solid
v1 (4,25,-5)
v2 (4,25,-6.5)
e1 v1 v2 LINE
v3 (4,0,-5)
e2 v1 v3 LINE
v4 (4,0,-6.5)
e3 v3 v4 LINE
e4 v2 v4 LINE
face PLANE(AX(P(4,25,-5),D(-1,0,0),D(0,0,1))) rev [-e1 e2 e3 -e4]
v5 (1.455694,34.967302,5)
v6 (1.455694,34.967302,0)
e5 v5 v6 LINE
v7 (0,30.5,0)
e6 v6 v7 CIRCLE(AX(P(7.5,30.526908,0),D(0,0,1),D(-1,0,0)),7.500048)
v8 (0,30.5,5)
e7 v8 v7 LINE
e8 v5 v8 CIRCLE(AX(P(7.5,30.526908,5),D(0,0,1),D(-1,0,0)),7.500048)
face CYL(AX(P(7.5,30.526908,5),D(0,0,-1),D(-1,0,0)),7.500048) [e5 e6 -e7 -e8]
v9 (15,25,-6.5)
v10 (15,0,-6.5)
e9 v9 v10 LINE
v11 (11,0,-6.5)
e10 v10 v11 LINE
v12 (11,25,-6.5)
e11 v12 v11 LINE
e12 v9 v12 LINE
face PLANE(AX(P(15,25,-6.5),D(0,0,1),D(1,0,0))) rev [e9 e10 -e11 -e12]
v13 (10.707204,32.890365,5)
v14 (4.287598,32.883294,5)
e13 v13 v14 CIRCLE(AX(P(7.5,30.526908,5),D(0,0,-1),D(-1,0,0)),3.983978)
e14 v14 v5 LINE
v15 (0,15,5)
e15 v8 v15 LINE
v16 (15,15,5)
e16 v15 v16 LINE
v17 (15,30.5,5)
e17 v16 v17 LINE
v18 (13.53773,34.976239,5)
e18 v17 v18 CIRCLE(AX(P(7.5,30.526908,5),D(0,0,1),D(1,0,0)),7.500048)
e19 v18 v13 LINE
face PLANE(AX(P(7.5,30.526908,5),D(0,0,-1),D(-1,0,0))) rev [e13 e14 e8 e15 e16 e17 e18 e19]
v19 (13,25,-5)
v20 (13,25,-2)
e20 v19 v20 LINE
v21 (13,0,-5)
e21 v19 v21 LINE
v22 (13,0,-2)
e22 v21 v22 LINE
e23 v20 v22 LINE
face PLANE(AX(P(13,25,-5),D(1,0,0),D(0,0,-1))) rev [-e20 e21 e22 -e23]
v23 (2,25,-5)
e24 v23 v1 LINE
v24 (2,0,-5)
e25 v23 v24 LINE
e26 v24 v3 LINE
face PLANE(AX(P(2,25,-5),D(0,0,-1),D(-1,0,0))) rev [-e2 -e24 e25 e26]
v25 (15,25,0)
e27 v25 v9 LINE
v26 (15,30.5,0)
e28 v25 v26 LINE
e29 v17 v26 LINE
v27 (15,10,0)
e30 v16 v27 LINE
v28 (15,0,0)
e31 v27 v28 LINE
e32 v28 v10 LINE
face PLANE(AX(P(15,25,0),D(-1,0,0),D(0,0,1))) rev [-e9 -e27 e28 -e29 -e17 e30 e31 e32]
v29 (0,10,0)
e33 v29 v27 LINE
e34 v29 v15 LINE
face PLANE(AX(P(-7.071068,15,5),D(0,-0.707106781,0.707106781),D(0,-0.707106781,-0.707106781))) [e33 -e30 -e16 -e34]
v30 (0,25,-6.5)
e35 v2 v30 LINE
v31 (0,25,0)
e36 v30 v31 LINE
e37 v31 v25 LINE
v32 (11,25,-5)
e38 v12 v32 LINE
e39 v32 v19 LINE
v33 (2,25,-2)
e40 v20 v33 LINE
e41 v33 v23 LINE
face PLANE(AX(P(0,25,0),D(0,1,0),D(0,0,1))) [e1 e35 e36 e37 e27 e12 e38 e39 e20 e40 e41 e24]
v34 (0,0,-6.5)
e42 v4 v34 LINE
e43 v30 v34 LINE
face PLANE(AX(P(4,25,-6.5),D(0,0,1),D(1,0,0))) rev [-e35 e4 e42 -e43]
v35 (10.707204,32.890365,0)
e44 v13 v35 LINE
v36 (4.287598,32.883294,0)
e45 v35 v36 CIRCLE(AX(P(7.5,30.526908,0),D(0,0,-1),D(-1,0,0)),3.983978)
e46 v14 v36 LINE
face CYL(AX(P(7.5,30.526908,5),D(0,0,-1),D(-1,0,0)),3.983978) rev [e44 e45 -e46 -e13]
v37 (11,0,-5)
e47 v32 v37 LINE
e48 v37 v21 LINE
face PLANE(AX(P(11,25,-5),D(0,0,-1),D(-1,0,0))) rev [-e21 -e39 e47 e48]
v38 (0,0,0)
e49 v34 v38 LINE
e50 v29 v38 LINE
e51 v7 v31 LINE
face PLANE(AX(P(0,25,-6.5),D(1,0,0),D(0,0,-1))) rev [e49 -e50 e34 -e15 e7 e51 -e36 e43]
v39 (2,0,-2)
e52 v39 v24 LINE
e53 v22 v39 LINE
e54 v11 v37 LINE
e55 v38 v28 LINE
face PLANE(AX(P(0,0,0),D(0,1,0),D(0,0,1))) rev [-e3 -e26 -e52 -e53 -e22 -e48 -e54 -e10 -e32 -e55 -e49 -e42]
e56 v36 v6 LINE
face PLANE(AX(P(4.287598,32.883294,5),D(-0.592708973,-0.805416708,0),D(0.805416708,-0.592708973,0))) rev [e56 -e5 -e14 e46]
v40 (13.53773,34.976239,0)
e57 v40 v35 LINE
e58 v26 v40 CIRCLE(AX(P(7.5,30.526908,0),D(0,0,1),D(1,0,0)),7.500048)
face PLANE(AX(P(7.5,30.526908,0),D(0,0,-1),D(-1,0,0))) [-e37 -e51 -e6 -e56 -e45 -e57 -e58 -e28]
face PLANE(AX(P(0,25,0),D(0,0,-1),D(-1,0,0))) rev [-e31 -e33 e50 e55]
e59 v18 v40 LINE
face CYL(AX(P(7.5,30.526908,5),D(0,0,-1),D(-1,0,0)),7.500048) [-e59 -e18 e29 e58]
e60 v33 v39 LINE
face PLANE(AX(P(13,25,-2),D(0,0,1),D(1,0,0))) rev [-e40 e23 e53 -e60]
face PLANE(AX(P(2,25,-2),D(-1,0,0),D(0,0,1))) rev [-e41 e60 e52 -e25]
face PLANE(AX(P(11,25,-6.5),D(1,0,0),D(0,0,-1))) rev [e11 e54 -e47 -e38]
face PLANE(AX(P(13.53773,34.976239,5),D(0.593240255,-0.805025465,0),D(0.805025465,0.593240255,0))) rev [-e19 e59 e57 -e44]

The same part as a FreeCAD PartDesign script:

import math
import FreeCAD as App
import Part
import Sketcher
Q = App.Units.Quantity

doc = App.newDocument("Part")
body = doc.addObject("PartDesign::Body", "Body")

# Sketch on XZ plane
sketch1 = body.newObject("Sketcher::SketchObject", "Sketch")
sketch1.AttachmentSupport = (doc.getObject("XZ_Plane"), [""])
sketch1.MapMode = "FlatFace"
sketch1.addGeometry(Part.LineSegment(App.Vector(0, 0, 0), App.Vector(15, 0, 0)), False)
sketch1.addGeometry(Part.LineSegment(App.Vector(15, 0, 0), App.Vector(15, -6.5, 0)), False)
sketch1.addGeometry(Part.LineSegment(App.Vector(15, -6.5, 0), App.Vector(11, -6.5, 0)), False)
sketch1.addGeometry(Part.LineSegment(App.Vector(11, -6.5, 0), App.Vector(11, -5, 0)), False)
sketch1.addGeometry(Part.LineSegment(App.Vector(11, -5, 0), App.Vector(13, -5, 0)), False)
sketch1.addGeometry(Part.LineSegment(App.Vector(13, -5, 0), App.Vector(13, -2, 0)), False)
sketch1.addGeometry(Part.LineSegment(App.Vector(13, -2, 0), App.Vector(2, -2, 0)), False)
sketch1.addGeometry(Part.LineSegment(App.Vector(2, -2, 0), App.Vector(2, -5, 0)), False)
sketch1.addGeometry(Part.LineSegment(App.Vector(2, -5, 0), App.Vector(4, -5, 0)), False)
sketch1.addGeometry(Part.LineSegment(App.Vector(4, -5, 0), App.Vector(4, -6.5, 0)), False)
sketch1.addGeometry(Part.LineSegment(App.Vector(4, -6.5, 0), App.Vector(0, -6.5, 0)), False)
sketch1.addGeometry(Part.LineSegment(App.Vector(0, -6.5, 0), App.Vector(0, 0, 0)), False)
sketch1.addConstraint(Sketcher.Constraint("Coincident", 0, 2, 1, 1))
sketch1.addConstraint(Sketcher.Constraint("Coincident", 1, 2, 2, 1))
sketch1.addConstraint(Sketcher.Constraint("Coincident", 2, 2, 3, 1))
sketch1.addConstraint(Sketcher.Constraint("Coincident", 3, 2, 4, 1))
sketch1.addConstraint(Sketcher.Constraint("Coincident", 4, 2, 5, 1))
sketch1.addConstraint(Sketcher.Constraint("Coincident", 5, 2, 6, 1))
sketch1.addConstraint(Sketcher.Constraint("Coincident", 6, 2, 7, 1))
sketch1.addConstraint(Sketcher.Constraint("Coincident", 7, 2, 8, 1))
sketch1.addConstraint(Sketcher.Constraint("Coincident", 8, 2, 9, 1))
sketch1.addConstraint(Sketcher.Constraint("Coincident", 9, 2, 10, 1))
sketch1.addConstraint(Sketcher.Constraint("Coincident", 10, 2, 11, 1))
sketch1.addConstraint(Sketcher.Constraint("Coincident", 11, 2, 0, 1))
sketch1.addConstraint(Sketcher.Constraint("Horizontal", 0))
sketch1.addConstraint(Sketcher.Constraint("Vertical", 1))
sketch1.addConstraint(Sketcher.Constraint("Horizontal", 2))
sketch1.addConstraint(Sketcher.Constraint("Vertical", 3))
sketch1.addConstraint(Sketcher.Constraint("Horizontal", 4))
sketch1.addConstraint(Sketcher.Constraint("Vertical", 5))
sketch1.addConstraint(Sketcher.Constraint("Horizontal", 6))
sketch1.addConstraint(Sketcher.Constraint("Vertical", 7))
sketch1.addConstraint(Sketcher.Constraint("Horizontal", 8))
sketch1.addConstraint(Sketcher.Constraint("Vertical", 9))
sketch1.addConstraint(Sketcher.Constraint("Horizontal", 10))
sketch1.addConstraint(Sketcher.Constraint("Vertical", 11))
sketch1.addConstraint(Sketcher.Constraint("Coincident", 11, 2, -1, 1))
sketch1.addConstraint(Sketcher.Constraint("Horizontal", 4, 2, 7, 2))
sketch1.addConstraint(Sketcher.Constraint("Horizontal", 2, 2, 9, 2))
sketch1.addConstraint(Sketcher.Constraint("Equal", 4, 8))
sketch1.addConstraint(Sketcher.Constraint("Equal", 2, 10))
sketch1.addConstraint(Sketcher.Constraint("DistanceX", 0, 1, 0, 2, Q("15 mm")))
sketch1.addConstraint(Sketcher.Constraint("DistanceX", 2, 2, 2, 1, Q("4 mm")))
sketch1.addConstraint(Sketcher.Constraint("DistanceX", 4, 1, 4, 2, Q("2 mm")))
sketch1.addConstraint(Sketcher.Constraint("DistanceY", 5, 1, 5, 2, Q("3 mm")))
sketch1.addConstraint(Sketcher.Constraint("DistanceY", 1, 2, 1, 1, Q("6.5 mm")))
sketch1.addConstraint(Sketcher.Constraint("DistanceY", 3, 1, 3, 2, Q("1.5 mm")))
pad1 = body.newObject("PartDesign::Pad", "Pad")
pad1.Profile = sketch1
pad1.Length = 25
pad1.Reversed = True

# Sketch on XY plane
sketch2 = body.newObject("Sketcher::SketchObject", "Sketch001")
sketch2.AttachmentSupport = (doc.getObject("XY_Plane"), [""])
sketch2.MapMode = "FlatFace"
sketch2.addGeometry(Part.ArcOfCircle(Part.Circle(App.Vector(7.5, 30.526908, 0), App.Vector(0, 0, 1), 7.500048), math.radians(-0.205563), math.radians(36.387285)), False)
sketch2.addGeometry(Part.LineSegment(App.Vector(13.53773, 34.976239, 0), App.Vector(10.707204, 32.890365, 0)), False)
sketch2.addGeometry(Part.ArcOfCircle(Part.Circle(App.Vector(7.5, 30.526908, 0), App.Vector(0, 0, 1), 3.983978), math.radians(143.738921), math.radians(396.387285)), False)
sketch2.addGeometry(Part.LineSegment(App.Vector(4.287598, 32.883294, 0), App.Vector(1.455694, 34.967302, 0)), False)
sketch2.addGeometry(Part.ArcOfCircle(Part.Circle(App.Vector(7.5, 30.526908, 0), App.Vector(0, 0, 1), 7.500048), math.radians(143.697477), math.radians(180.205563)), False)
sketch2.addGeometry(Part.LineSegment(App.Vector(0, 30.5, 0), App.Vector(0, 15, 0)), False)
sketch2.addGeometry(Part.LineSegment(App.Vector(0, 15, 0), App.Vector(15, 15, 0)), False)
sketch2.addGeometry(Part.LineSegment(App.Vector(15, 15, 0), App.Vector(15, 30.5, 0)), False)
sketch2.addConstraint(Sketcher.Constraint("Coincident", 0, 2, 1, 1))
sketch2.addConstraint(Sketcher.Constraint("Coincident", 1, 2, 2, 2))
sketch2.addConstraint(Sketcher.Constraint("Coincident", 2, 1, 3, 1))
sketch2.addConstraint(Sketcher.Constraint("Coincident", 3, 2, 4, 1))
sketch2.addConstraint(Sketcher.Constraint("Coincident", 4, 2, 5, 1))
sketch2.addConstraint(Sketcher.Constraint("Coincident", 5, 2, 6, 1))
sketch2.addConstraint(Sketcher.Constraint("Coincident", 6, 2, 7, 1))
sketch2.addConstraint(Sketcher.Constraint("Coincident", 7, 2, 0, 1))
sketch2.addConstraint(Sketcher.Constraint("Vertical", 5))
sketch2.addConstraint(Sketcher.Constraint("Horizontal", 6))
sketch2.addConstraint(Sketcher.Constraint("Vertical", 7))
sketch2.addConstraint(Sketcher.Constraint("Coincident", 2, 3, 0, 3))
sketch2.addConstraint(Sketcher.Constraint("Coincident", 4, 3, 0, 3))
sketch2.addConstraint(Sketcher.Constraint("Equal", 0, 4))
sketch2.addConstraint(Sketcher.Constraint("PointOnObject", 4, 2, -2))
sketch2.addConstraint(Sketcher.Constraint("Horizontal", 4, 2, 7, 2))
sketch2.addConstraint(Sketcher.Constraint("DistanceX", 6, 1, 6, 2, Q("15 mm")))
sketch2.addConstraint(Sketcher.Constraint("DistanceY", 5, 2, 5, 1, Q("15.5 mm")))
sketch2.addConstraint(Sketcher.Constraint("DistanceY", -1, 1, 5, 2, Q("15 mm")))
sketch2.addConstraint(Sketcher.Constraint("Radius", 2, Q("3.983978 mm")))
sketch2.addConstraint(Sketcher.Constraint("DistanceY", -1, 1, 3, 2, Q("34.967302 mm")))
sketch2.addConstraint(Sketcher.Constraint("DistanceY", -1, 1, 0, 3, Q("30.526908 mm")))
sketch2.addConstraint(Sketcher.Constraint("DistanceX", -1, 1, 0, 2, Q("13.53773 mm")))
sketch2.addConstraint(Sketcher.Constraint("DistanceY", 2, 1, 1, 2, Q("0.00707 mm")))
sketch2.addConstraint(Sketcher.Constraint("DistanceX", 3, 2, 1, 2, Q("9.251509 mm")))
pad2 = body.newObject("PartDesign::Pad", "Pad001")
pad2.Profile = sketch2
pad2.Length = 5

# Sketch on YZ plane
sketch3 = body.newObject("Sketcher::SketchObject", "Sketch002")
sketch3.AttachmentSupport = (doc.getObject("YZ_Plane"), [""])
sketch3.MapMode = "FlatFace"
sketch3.AttachmentOffset = App.Placement(App.Vector(0, 0, 15), App.Rotation())
sketch3.addGeometry(Part.LineSegment(App.Vector(15, 5, 0), App.Vector(10, 0, 0)), False)
sketch3.addGeometry(Part.LineSegment(App.Vector(10, 0, 0), App.Vector(15, 0, 0)), False)
sketch3.addGeometry(Part.LineSegment(App.Vector(15, 0, 0), App.Vector(15, 5, 0)), False)
sketch3.addConstraint(Sketcher.Constraint("Coincident", 0, 2, 1, 1))
sketch3.addConstraint(Sketcher.Constraint("Coincident", 1, 2, 2, 1))
sketch3.addConstraint(Sketcher.Constraint("Coincident", 2, 2, 0, 1))
sketch3.addConstraint(Sketcher.Constraint("Horizontal", 1))
sketch3.addConstraint(Sketcher.Constraint("Vertical", 2))
sketch3.addConstraint(Sketcher.Constraint("PointOnObject", 0, 2, -1))
sketch3.addConstraint(Sketcher.Constraint("Equal", 1, 2))
sketch3.addConstraint(Sketcher.Constraint("DistanceX", 1, 1, 1, 2, Q("5 mm")))
sketch3.addConstraint(Sketcher.Constraint("DistanceX", -1, 1, 0, 2, Q("10 mm")))
pad3 = body.newObject("PartDesign::Pad", "Pad002")
pad3.Profile = sketch3
pad3.Length = 15
pad3.Reversed = True

doc.recompute()
